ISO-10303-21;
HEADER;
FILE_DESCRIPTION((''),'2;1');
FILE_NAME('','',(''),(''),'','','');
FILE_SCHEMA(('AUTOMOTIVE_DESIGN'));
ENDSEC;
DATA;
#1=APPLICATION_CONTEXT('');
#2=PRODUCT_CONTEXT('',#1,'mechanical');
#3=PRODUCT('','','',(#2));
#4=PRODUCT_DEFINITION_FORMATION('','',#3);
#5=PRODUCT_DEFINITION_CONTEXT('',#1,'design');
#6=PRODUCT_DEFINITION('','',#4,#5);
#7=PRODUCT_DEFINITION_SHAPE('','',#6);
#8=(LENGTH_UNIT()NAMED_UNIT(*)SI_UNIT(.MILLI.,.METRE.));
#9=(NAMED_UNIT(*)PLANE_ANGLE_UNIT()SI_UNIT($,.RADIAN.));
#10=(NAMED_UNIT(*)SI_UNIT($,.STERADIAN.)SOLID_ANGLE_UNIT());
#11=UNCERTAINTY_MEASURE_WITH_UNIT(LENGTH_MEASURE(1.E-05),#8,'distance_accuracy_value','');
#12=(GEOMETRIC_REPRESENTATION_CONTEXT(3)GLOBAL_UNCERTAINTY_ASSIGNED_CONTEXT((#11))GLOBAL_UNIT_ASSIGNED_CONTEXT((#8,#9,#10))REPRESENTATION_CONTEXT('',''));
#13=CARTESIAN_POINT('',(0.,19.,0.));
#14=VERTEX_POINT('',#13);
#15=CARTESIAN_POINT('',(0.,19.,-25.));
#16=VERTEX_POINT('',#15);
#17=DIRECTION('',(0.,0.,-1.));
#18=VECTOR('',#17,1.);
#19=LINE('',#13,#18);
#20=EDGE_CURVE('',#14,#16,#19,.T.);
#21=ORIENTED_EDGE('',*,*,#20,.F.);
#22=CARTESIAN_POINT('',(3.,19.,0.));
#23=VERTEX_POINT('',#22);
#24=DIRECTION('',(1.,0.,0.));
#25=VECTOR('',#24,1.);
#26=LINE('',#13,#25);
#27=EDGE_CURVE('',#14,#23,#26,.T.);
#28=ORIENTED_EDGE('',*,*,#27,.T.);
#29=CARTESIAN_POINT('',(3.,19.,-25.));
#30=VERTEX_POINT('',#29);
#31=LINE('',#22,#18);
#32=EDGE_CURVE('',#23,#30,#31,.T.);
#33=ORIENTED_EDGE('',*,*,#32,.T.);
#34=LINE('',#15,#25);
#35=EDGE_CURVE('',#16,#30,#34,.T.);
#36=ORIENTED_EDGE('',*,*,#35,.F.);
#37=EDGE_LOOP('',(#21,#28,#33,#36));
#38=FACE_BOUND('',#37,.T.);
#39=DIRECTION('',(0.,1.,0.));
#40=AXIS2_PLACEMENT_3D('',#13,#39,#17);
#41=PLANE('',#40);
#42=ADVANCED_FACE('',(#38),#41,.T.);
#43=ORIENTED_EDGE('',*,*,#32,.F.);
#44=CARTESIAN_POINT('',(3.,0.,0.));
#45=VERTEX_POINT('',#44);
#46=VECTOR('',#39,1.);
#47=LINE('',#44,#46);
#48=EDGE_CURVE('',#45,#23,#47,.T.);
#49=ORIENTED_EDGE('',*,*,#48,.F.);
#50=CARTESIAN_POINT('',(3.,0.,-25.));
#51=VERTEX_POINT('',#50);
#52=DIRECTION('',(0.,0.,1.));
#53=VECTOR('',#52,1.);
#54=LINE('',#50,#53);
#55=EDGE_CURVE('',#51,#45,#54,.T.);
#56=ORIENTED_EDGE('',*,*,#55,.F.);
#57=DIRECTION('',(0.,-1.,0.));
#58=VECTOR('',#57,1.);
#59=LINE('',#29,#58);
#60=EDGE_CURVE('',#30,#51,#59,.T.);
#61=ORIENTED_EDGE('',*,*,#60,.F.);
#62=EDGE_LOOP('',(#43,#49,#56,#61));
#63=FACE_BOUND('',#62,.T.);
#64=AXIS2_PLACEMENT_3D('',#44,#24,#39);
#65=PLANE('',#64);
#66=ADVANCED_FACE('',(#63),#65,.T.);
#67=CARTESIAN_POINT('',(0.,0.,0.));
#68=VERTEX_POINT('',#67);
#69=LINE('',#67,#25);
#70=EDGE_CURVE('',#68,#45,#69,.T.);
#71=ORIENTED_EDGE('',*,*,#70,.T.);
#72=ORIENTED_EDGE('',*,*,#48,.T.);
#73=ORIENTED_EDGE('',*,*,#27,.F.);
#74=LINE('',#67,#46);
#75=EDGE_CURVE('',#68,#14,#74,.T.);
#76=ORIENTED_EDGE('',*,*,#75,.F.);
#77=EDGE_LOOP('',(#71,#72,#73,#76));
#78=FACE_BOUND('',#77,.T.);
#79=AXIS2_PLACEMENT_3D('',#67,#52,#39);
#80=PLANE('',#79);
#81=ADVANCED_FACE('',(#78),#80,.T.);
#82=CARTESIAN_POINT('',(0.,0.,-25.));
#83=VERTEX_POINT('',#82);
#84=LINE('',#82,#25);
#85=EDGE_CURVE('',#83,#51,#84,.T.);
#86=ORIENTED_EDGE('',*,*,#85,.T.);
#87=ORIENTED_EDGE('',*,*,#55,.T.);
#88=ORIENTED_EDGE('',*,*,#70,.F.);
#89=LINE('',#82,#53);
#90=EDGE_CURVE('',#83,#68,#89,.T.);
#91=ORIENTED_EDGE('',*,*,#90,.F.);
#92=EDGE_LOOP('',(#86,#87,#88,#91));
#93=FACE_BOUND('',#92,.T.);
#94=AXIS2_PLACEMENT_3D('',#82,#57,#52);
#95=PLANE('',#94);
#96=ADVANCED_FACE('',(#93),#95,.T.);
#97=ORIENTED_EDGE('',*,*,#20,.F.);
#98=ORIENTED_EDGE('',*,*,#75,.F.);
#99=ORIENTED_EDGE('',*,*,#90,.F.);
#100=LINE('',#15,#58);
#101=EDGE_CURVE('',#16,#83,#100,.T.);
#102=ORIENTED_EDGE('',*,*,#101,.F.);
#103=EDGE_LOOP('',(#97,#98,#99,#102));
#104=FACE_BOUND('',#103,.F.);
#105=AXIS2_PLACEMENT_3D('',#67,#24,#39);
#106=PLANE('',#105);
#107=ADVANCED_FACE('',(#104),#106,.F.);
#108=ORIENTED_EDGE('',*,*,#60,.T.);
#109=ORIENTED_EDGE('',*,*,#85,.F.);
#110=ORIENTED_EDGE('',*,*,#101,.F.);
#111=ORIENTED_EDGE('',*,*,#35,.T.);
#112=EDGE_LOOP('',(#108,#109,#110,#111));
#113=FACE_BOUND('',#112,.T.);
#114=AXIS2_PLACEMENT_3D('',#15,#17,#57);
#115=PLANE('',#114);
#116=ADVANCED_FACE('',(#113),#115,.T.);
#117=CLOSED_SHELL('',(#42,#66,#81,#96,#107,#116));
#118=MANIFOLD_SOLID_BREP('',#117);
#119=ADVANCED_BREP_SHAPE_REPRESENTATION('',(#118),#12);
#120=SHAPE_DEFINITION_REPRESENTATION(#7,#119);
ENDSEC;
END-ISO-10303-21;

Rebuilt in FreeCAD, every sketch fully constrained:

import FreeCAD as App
import Part
import Sketcher

V = App.Vector


def add_polygon(sketch, points):
    """Adds a closed chain of lines whose ends are joined by coincident constraints."""
    first, n = sketch.GeometryCount, len(points)
    for a, b in zip(points, points[1:] + points[:1]):
        sketch.addGeometry(Part.LineSegment(App.Vector(*a, 0), App.Vector(*b, 0)), False)
    for i in range(n):
        sketch.addConstraint(Sketcher.Constraint("Coincident", first + i, 2, first + (i + 1) % n, 1))

doc = App.newDocument("Part")
body = doc.addObject("PartDesign::Body", "Body")

# Sketch on YZ plane
sketch1 = body.newObject("Sketcher::SketchObject", "Sketch")
sketch1.AttachmentSupport = (doc.getObject("YZ_Plane"), [""])
sketch1.MapMode = "FlatFace"
add_polygon(sketch1, [(19, 0), (0, 0), (0, -25), (19, -25)])  # lines 0-3
sketch1.addConstraint([
    Sketcher.Constraint("Horizontal", 0),
    Sketcher.Constraint("Vertical", 1),
    Sketcher.Constraint("Horizontal", 2),
    Sketcher.Constraint("Vertical", 3),
    Sketcher.Constraint("Coincident", 0, 2, -1, 1),
    Sketcher.Constraint("DistanceX", 0, 2, 0, 1, 19.0),
    Sketcher.Constraint("DistanceY", 1, 2, 1, 1, 25.0),
])
pad1 = body.newObject("PartDesign::Pad", "Pad")
pad1.Profile = sketch1
pad1.Length = 3

doc.recompute()
